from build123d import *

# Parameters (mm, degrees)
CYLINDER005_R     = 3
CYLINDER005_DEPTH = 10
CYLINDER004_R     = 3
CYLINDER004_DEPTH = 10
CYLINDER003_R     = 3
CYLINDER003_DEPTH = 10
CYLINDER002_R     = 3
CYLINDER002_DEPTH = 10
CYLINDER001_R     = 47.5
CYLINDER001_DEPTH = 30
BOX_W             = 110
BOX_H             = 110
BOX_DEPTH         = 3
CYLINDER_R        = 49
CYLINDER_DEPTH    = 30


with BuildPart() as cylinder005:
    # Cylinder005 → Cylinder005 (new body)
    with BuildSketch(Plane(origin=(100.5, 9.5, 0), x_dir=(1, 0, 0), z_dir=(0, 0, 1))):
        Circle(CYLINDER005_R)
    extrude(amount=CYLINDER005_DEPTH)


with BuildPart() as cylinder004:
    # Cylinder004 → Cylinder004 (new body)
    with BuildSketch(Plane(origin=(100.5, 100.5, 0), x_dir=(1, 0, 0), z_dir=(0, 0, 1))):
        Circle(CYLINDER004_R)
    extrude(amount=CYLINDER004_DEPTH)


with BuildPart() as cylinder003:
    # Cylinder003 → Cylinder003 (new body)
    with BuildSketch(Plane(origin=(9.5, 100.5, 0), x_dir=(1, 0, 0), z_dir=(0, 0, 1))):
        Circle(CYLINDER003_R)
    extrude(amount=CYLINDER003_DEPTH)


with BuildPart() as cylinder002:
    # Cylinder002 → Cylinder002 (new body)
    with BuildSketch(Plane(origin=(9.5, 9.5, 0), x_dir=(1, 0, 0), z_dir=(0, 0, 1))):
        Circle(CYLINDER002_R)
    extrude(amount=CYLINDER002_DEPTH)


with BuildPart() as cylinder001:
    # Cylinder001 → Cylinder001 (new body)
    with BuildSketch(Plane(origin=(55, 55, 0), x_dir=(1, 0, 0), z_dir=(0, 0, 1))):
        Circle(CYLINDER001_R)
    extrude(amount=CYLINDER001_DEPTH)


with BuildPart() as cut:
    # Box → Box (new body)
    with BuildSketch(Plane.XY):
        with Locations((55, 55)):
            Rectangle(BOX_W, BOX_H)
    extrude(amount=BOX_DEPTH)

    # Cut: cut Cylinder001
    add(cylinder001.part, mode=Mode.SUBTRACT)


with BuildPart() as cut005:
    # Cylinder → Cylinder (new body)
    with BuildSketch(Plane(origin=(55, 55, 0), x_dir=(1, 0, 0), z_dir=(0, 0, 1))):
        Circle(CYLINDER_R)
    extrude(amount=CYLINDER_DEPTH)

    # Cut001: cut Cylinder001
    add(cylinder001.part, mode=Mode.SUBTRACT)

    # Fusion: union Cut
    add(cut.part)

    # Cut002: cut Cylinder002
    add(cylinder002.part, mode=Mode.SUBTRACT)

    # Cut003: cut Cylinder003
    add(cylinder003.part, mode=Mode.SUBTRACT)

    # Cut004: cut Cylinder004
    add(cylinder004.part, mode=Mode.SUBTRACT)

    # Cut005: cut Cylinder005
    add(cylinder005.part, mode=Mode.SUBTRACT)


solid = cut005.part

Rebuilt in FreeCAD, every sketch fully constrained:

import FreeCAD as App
import Part
import Sketcher
from FreeCAD import Vector


def add_polygon(sketch, points):
    """Adds a closed chain of lines whose ends are joined by coincident constraints."""
    first, n = sketch.GeometryCount, len(points)
    for a, b in zip(points, points[1:] + points[:1]):
        sketch.addGeometry(Part.LineSegment(App.Vector(*a, 0), App.Vector(*b, 0)), False)
    for i in range(n):
        sketch.addConstraint(Sketcher.Constraint("Coincident", first + i, 2, first + (i + 1) % n, 1))

doc = App.newDocument("Part")
body = doc.addObject("PartDesign::Body", "Body")

# Sketch on XY plane
sketch1 = body.newObject("Sketcher::SketchObject", "Sketch")
sketch1.AttachmentSupport = (doc.getObject("XY_Plane"), [""])
sketch1.MapMode = "FlatFace"
sketch1.addGeometry(Part.Circle(Vector(100.5, 9.5, 0), Vector(0, 0, 1), 3), False)
sketch1.addConstraint([
    Sketcher.Constraint("Diameter", 0, 6.0),
    Sketcher.Constraint("DistanceX", -1, 1, 0, 3, 100.5),
    Sketcher.Constraint("DistanceY", -1, 1, 0, 3, 9.5),
])
pad1 = body.newObject("PartDesign::Pad", "Pad")
pad1.Profile = sketch1
pad1.Length = 10
body2 = doc.addObject("PartDesign::Body", "Body001")

# Sketch on XY plane
sketch2 = body2.newObject("Sketcher::SketchObject", "Sketch001")
sketch2.AttachmentSupport = (doc.getObject("XY_Plane001"), [""])
sketch2.MapMode = "FlatFace"
sketch2.addGeometry(Part.Circle(Vector(100.5, 100.5, 0), Vector(0, 0, 1), 3), False)
sketch2.addConstraint([
    Sketcher.Constraint("Diameter", 0, 6.0),
    Sketcher.Constraint("DistanceX", -1, 1, 0, 3, 100.5),
    Sketcher.Constraint("DistanceY", -1, 1, 0, 3, 100.5),
])
pad2 = body2.newObject("PartDesign::Pad", "Pad001")
pad2.Profile = sketch2
pad2.Length = 10
body3 = doc.addObject("PartDesign::Body", "Body002")

# Sketch on XY plane
sketch3 = body3.newObject("Sketcher::SketchObject", "Sketch002")
sketch3.AttachmentSupport = (doc.getObject("XY_Plane002"), [""])
sketch3.MapMode = "FlatFace"
sketch3.addGeometry(Part.Circle(Vector(9.5, 100.5, 0), Vector(0, 0, 1), 3), False)
sketch3.addConstraint([
    Sketcher.Constraint("Diameter", 0, 6.0),
    Sketcher.Constraint("DistanceX", -1, 1, 0, 3, 9.5),
    Sketcher.Constraint("DistanceY", -1, 1, 0, 3, 100.5),
])
pad3 = body3.newObject("PartDesign::Pad", "Pad002")
pad3.Profile = sketch3
pad3.Length = 10
body4 = doc.addObject("PartDesign::Body", "Body003")

# Sketch on XY plane
sketch4 = body4.newObject("Sketcher::SketchObject", "Sketch003")
sketch4.AttachmentSupport = (doc.getObject("XY_Plane003"), [""])
sketch4.MapMode = "FlatFace"
sketch4.addGeometry(Part.Circle(Vector(9.5, 9.5, 0), Vector(0, 0, 1), 3), False)
sketch4.addConstraint([
    Sketcher.Constraint("Diameter", 0, 6.0),
    Sketcher.Constraint("DistanceX", -1, 1, 0, 3, 9.5),
    Sketcher.Constraint("DistanceY", -1, 1, 0, 3, 9.5),
])
pad4 = body4.newObject("PartDesign::Pad", "Pad003")
pad4.Profile = sketch4
pad4.Length = 10
body5 = doc.addObject("PartDesign::Body", "Body004")

# Sketch on XY plane
sketch5 = body5.newObject("Sketcher::SketchObject", "Sketch004")
sketch5.AttachmentSupport = (doc.getObject("XY_Plane004"), [""])
sketch5.MapMode = "FlatFace"
sketch5.addGeometry(Part.Circle(Vector(55, 55, 0), Vector(0, 0, 1), 47.5), False)
sketch5.addConstraint([
    Sketcher.Constraint("Diameter", 0, 95.0),
    Sketcher.Constraint("DistanceX", -1, 1, 0, 3, 55.0),
    Sketcher.Constraint("DistanceY", -1, 1, 0, 3, 55.0),
])
pad5 = body5.newObject("PartDesign::Pad", "Pad004")
pad5.Profile = sketch5
pad5.Length = 30
body6 = doc.addObject("PartDesign::Body", "Body005")

# Sketch on XY plane
sketch6 = body6.newObject("Sketcher::SketchObject", "Sketch005")
sketch6.AttachmentSupport = (doc.getObject("XY_Plane005"), [""])
sketch6.MapMode = "FlatFace"
add_polygon(sketch6, [(0, 110), (0, 0), (110, 0), (110, 110)])  # lines 0-3
sketch6.addConstraint([
    Sketcher.Constraint("Vertical", 0),
    Sketcher.Constraint("Horizontal", 1),
    Sketcher.Constraint("Vertical", 2),
    Sketcher.Constraint("Horizontal", 3),
    Sketcher.Constraint("Coincident", 0, 2, -1, 1),
    Sketcher.Constraint("Equal", 3, 0),
    Sketcher.Constraint("DistanceX", 1, 1, 1, 2, 110.0),
])
pad6 = body6.newObject("PartDesign::Pad", "Pad005")
pad6.Profile = sketch6
pad6.Length = 3
doc.recompute()

body7 = doc.addObject("PartDesign::Body", "Body006")
body7.BaseFeature = body5
boolean = body6.newObject("PartDesign::Boolean", "Boolean")
boolean.Type = "Cut"
boolean.addObjects([body7])
doc.recompute()
body8 = doc.addObject("PartDesign::Body", "Body007")

# Sketch on XY plane
sketch7 = body8.newObject("Sketcher::SketchObject", "Sketch006")
sketch7.AttachmentSupport = (doc.getObject("XY_Plane007"), [""])
sketch7.MapMode = "FlatFace"
sketch7.addGeometry(Part.Circle(Vector(55, 55, 0), Vector(0, 0, 1), 49), False)
sketch7.addConstraint([
    Sketcher.Constraint("Diameter", 0, 98.0),
    Sketcher.Constraint("DistanceX", -1, 1, 0, 3, 55.0),
    Sketcher.Constraint("DistanceY", -1, 1, 0, 3, 55.0),
])
pad7 = body8.newObject("PartDesign::Pad", "Pad006")
pad7.Profile = sketch7
pad7.Length = 30
doc.recompute()

boolean2 = body8.newObject("PartDesign::Boolean", "Boolean001")
boolean2.Type = "Cut"
boolean2.addObjects([body5])
doc.recompute()

boolean3 = body8.newObject("PartDesign::Boolean", "Boolean002")
boolean3.Type = "Fuse"
boolean3.addObjects([body6])
doc.recompute()

boolean4 = body8.newObject("PartDesign::Boolean", "Boolean003")
boolean4.Type = "Cut"
boolean4.addObjects([body4])
doc.recompute()

boolean5 = body8.newObject("PartDesign::Boolean", "Boolean004")
boolean5.Type = "Cut"
boolean5.addObjects([body3])
doc.recompute()

boolean6 = body8.newObject("PartDesign::Boolean", "Boolean005")
boolean6.Type = "Cut"
boolean6.addObjects([body2])
doc.recompute()

boolean7 = body8.newObject("PartDesign::Boolean", "Boolean006")
boolean7.Type = "Cut"
boolean7.addObjects([body])

doc.recompute()
